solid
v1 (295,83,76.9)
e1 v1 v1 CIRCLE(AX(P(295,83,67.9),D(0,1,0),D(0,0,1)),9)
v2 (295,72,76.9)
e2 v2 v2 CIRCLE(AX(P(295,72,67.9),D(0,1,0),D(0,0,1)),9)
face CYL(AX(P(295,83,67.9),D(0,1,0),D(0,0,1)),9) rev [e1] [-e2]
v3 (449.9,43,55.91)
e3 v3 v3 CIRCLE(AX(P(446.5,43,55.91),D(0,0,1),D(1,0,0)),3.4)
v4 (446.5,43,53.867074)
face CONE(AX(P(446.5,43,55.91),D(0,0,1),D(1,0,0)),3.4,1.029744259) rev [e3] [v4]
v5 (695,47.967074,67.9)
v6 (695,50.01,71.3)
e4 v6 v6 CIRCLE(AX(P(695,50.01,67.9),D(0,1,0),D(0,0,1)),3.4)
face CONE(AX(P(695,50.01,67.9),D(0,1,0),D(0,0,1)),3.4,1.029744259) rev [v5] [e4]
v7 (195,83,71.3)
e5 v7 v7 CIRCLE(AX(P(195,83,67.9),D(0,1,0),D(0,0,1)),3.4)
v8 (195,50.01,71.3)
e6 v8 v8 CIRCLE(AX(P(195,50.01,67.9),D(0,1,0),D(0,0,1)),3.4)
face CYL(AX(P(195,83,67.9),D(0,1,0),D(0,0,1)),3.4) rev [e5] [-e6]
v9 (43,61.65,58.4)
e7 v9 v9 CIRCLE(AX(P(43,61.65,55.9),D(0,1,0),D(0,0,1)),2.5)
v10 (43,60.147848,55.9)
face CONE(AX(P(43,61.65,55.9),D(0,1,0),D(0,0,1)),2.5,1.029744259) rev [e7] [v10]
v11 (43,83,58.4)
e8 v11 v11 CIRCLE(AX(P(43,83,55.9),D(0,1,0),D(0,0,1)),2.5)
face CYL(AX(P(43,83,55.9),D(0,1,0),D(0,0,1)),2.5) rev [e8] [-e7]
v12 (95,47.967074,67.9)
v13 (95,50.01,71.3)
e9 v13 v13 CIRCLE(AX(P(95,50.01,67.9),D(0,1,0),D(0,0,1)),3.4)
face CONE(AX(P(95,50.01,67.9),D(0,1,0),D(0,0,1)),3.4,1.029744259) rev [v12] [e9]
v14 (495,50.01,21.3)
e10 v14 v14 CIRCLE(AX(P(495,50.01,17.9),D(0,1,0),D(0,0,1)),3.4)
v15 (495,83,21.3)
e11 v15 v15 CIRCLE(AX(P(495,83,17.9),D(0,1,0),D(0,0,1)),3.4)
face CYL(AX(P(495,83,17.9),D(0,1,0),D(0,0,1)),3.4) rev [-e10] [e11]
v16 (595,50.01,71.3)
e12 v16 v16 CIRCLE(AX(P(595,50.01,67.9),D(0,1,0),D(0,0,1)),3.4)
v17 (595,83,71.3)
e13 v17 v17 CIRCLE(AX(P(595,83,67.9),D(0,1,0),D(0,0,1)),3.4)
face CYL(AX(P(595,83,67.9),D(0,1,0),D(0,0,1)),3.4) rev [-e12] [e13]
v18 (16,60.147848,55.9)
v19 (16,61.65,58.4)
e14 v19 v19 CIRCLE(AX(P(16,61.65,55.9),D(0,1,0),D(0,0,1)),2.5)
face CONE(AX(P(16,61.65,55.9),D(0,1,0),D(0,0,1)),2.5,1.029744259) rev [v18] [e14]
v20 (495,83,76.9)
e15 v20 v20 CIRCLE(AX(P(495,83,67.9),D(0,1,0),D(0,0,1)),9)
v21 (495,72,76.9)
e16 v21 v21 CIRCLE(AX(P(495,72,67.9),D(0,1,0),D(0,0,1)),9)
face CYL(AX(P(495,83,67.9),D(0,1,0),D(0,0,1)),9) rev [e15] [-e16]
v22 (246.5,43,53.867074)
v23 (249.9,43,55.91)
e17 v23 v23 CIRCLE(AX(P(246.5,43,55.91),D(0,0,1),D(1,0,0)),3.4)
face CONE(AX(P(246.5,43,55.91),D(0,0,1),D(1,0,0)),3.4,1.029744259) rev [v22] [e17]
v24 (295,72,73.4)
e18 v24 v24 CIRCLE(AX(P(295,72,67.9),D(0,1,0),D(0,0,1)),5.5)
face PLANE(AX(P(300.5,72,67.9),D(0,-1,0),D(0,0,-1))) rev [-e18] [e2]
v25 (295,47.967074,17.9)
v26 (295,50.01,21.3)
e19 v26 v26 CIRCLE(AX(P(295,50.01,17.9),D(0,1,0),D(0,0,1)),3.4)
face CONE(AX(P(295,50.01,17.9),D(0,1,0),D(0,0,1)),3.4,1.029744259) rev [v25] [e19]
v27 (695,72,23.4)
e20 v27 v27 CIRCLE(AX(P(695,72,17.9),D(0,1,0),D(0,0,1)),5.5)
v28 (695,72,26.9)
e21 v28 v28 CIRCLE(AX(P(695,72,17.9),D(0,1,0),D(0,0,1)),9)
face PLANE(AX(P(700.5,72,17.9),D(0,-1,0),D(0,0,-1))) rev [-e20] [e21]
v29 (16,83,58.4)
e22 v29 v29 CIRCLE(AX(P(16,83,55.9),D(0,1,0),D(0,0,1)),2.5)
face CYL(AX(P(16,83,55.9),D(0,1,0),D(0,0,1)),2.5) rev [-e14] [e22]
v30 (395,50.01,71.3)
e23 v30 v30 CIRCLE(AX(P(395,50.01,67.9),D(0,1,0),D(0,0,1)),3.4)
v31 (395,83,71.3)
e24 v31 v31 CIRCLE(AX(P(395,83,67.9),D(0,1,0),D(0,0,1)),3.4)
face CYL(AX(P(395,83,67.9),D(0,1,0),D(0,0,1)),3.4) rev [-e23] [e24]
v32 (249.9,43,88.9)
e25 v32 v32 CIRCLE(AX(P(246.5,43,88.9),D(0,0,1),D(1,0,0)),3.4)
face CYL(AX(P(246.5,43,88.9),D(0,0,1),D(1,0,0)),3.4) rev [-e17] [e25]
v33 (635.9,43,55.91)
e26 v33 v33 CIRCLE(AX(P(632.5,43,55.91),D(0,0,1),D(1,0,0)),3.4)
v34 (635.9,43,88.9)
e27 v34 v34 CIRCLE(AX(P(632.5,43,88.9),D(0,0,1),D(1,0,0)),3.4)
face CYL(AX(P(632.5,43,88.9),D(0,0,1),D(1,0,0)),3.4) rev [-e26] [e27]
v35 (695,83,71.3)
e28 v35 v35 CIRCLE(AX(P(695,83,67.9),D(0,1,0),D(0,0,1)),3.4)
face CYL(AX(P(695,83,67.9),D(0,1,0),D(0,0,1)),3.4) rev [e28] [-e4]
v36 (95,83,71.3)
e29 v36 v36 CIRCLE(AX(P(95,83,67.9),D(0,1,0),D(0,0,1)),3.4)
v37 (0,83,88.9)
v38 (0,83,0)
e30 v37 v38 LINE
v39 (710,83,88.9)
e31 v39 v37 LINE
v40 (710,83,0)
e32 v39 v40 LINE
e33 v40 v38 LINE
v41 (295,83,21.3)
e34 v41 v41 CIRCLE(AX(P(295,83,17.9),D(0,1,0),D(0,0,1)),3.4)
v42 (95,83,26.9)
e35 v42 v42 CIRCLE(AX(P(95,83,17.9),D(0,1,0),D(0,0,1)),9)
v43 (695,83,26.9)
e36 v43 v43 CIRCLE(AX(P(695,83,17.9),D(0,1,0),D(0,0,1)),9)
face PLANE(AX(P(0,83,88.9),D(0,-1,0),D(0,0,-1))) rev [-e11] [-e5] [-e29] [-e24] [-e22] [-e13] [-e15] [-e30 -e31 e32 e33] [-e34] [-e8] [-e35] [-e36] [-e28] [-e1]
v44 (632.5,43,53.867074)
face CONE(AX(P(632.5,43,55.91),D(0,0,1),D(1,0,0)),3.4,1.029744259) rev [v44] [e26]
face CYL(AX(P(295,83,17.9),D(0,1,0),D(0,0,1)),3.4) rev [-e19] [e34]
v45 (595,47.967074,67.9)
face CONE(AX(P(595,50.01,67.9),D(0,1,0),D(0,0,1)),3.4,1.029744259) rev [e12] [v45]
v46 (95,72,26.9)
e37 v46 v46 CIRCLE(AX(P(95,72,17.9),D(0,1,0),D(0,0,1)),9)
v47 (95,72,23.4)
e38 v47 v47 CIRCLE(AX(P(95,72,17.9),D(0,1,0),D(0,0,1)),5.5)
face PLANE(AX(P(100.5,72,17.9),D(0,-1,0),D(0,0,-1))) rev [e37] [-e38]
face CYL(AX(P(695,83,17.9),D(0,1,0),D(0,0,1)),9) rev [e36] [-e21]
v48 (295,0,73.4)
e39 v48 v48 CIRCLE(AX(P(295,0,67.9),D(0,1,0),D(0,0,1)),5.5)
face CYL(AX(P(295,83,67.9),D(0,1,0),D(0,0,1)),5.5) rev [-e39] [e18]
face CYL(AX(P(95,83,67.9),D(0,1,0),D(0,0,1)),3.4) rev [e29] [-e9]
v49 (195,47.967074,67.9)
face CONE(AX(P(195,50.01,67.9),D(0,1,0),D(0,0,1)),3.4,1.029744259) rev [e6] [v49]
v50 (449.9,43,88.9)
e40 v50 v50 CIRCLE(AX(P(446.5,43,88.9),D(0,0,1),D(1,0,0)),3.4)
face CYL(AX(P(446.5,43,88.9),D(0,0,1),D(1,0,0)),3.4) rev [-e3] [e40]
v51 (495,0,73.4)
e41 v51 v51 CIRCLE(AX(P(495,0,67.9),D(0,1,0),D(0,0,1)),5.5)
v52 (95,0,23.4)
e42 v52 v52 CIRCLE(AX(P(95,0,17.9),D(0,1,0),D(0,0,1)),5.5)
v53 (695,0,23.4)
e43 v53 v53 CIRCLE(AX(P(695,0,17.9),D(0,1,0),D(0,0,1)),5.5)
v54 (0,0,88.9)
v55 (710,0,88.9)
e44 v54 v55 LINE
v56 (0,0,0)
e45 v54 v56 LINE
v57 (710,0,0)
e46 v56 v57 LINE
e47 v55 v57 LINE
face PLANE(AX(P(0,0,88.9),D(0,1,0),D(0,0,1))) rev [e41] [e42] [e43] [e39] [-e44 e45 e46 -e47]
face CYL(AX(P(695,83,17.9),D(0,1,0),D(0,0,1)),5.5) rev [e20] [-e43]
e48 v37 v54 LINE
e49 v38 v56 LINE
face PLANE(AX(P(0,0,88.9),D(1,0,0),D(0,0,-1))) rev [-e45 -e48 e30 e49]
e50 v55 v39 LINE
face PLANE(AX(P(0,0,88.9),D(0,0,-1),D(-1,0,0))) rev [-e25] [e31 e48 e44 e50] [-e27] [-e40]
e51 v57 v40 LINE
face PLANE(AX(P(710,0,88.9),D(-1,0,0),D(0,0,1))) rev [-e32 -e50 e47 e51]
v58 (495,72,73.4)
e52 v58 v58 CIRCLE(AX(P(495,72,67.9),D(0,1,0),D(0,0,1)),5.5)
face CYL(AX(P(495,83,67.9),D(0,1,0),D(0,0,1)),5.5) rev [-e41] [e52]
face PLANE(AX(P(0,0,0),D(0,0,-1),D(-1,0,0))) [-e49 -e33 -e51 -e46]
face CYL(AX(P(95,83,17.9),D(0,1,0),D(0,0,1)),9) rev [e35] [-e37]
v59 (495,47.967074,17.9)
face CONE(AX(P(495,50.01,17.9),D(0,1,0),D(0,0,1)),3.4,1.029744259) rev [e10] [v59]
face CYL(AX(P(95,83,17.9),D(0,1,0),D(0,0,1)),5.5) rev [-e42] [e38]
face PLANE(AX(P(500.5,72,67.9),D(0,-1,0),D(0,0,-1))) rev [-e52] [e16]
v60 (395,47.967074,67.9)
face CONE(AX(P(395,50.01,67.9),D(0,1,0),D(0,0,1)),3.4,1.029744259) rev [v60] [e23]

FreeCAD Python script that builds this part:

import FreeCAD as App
import Part
import Sketcher

V = App.Vector


def add_polygon(sketch, points):
    """Adds a closed chain of lines whose ends are joined by coincident constraints."""
    first, n = sketch.GeometryCount, len(points)
    for a, b in zip(points, points[1:] + points[:1]):
        sketch.addGeometry(Part.LineSegment(App.Vector(*a, 0), App.Vector(*b, 0)), False)
    for i in range(n):
        sketch.addConstraint(Sketcher.Constraint("Coincident", first + i, 2, first + (i + 1) % n, 1))

doc = App.newDocument("Part")
body = doc.addObject("PartDesign::Body", "Body")

# Sketch on XY plane
sketch1 = body.newObject("Sketcher::SketchObject", "Sketch")
sketch1.AttachmentSupport = (doc.getObject("XY_Plane"), [""])
sketch1.MapMode = "FlatFace"
add_polygon(sketch1, [(0, 83), (0, 0), (710, 0), (710, 83)])  # lines 0-3
sketch1.addConstraint([
    Sketcher.Constraint("Vertical", 0),
    Sketcher.Constraint("Horizontal", 1),
    Sketcher.Constraint("Vertical", 2),
    Sketcher.Constraint("Horizontal", 3),
    Sketcher.Constraint("Coincident", 0, 2, -1, 1),
    Sketcher.Constraint("DistanceX", 1, 1, 1, 2, 710.0),
    Sketcher.Constraint("DistanceY", 0, 2, 0, 1, 83.0),
])
pad1 = body.newObject("PartDesign::Pad", "Pad")
pad1.Profile = sketch1
pad1.Length = 88.9

# Sketch on XZ plane
sketch2 = body.newObject("Sketcher::SketchObject", "Sketch001")
sketch2.AttachmentSupport = (doc.getObject("XZ_Plane"), [""])
sketch2.MapMode = "FlatFace"
sketch2.AttachmentOffset = App.Placement(V(0, 0, -83), App.Rotation())
sketch2.addGeometry([
    Part.Circle(V(95, 67.9, 0), V(0, 0, 1), 3.4),  # 0
    Part.Circle(V(195, 67.9, 0), V(0, 0, 1), 3.4),  # 1
    Part.Circle(V(295, 17.9, 0), V(0, 0, 1), 3.4),  # 2
    Part.Circle(V(395, 67.9, 0), V(0, 0, 1), 3.4),  # 3
    Part.Circle(V(495, 17.9, 0), V(0, 0, 1), 3.4),  # 4
    Part.Circle(V(595, 67.9, 0), V(0, 0, 1), 3.4),  # 5
    Part.Circle(V(695, 67.9, 0), V(0, 0, 1), 3.4),  # 6
], False)
sketch2.addConstraint([
    Sketcher.Constraint("Equal", 0, 1),
    Sketcher.Constraint("Equal", 1, 2),
    Sketcher.Constraint("Equal", 2, 3),
    Sketcher.Constraint("Equal", 3, 4),
    Sketcher.Constraint("Equal", 4, 5),
    Sketcher.Constraint("Equal", 5, 6),
    Sketcher.Constraint("Horizontal", 0, 3, 1, 3),
    Sketcher.Constraint("Horizontal", 1, 3, 3, 3),
    Sketcher.Constraint("Horizontal", 2, 3, 4, 3),
    Sketcher.Constraint("Horizontal", 3, 3, 5, 3),
    Sketcher.Constraint("Horizontal", 5, 3, 6, 3),
    Sketcher.Constraint("Diameter", 0, 6.8),
    Sketcher.Constraint("DistanceX", -1, 1, 0, 3, 95.0),
    Sketcher.Constraint("DistanceX", -1, 1, 1, 3, 195.0),
    Sketcher.Constraint("DistanceX", -1, 1, 2, 3, 295.0),
    Sketcher.Constraint("DistanceX", -1, 1, 3, 3, 395.0),
    Sketcher.Constraint("DistanceX", -1, 1, 4, 3, 495.0),
    Sketcher.Constraint("DistanceX", -1, 1, 5, 3, 595.0),
    Sketcher.Constraint("DistanceX", -1, 1, 6, 3, 695.0),
    Sketcher.Constraint("DistanceY", 2, 3, 1, 3, 50.0),
    Sketcher.Constraint("DistanceY", -1, 1, 0, 3, 67.9),
])
doc.recompute()
hole = body.newObject("PartDesign::Hole", "Hole")
hole.Profile = sketch2
hole.ThreadType = "None"
hole.Diameter = 6.8
hole.DepthType = "Dimension"
hole.Depth = 32.99
hole.DrillPoint = "Angled"
hole.DrillPointAngle = 118
hole.Reversed = True

# Sketch on XZ plane
sketch3 = body.newObject("Sketcher::SketchObject", "Sketch002")
sketch3.AttachmentSupport = (doc.getObject("XZ_Plane"), [""])
sketch3.MapMode = "FlatFace"
sketch3.AttachmentOffset = App.Placement(V(0, 0, -83), App.Rotation())
sketch3.addGeometry([
    Part.Circle(V(695, 18, 0), V(0, 0, 1), 6),
    Part.Circle(V(495, 68, 0), V(0, 0, 1), 6),
    Part.Circle(V(295, 68, 0), V(0, 0, 1), 6),
    Part.Circle(V(95, 18, 0), V(0, 0, 1), 6),
], False)
sketch3.addConstraint([
    Sketcher.Constraint("Equal", 0, 1),
    Sketcher.Constraint("Equal", 1, 2),
    Sketcher.Constraint("Equal", 2, 3),
    Sketcher.Constraint("Horizontal", 1, 3, 2, 3),
    Sketcher.Constraint("Horizontal", 0, 3, 3, 3),
    Sketcher.Constraint("Diameter", 0, 11.0),
    Sketcher.Constraint("DistanceX", -1, 1, 0, 3, 695.0),
    Sketcher.Constraint("DistanceX", -1, 1, 1, 3, 495.0),
    Sketcher.Constraint("DistanceX", -1, 1, 2, 3, 295.0),
    Sketcher.Constraint("DistanceX", -1, 1, 3, 3, 95.0),
    Sketcher.Constraint("DistanceY", 0, 3, 1, 3, 50.0),
    Sketcher.Constraint("DistanceY", -1, 1, 0, 3, 17.9),
])
doc.recompute()
hole2 = body.newObject("PartDesign::Hole", "Hole001")
hole2.Profile = sketch3
hole2.ThreadType = "None"
hole2.Diameter = 11
hole2.DepthType = "ThroughAll"
hole2.HoleCutType = "Counterbore"
hole2.HoleCutDiameter = 18
hole2.HoleCutDepth = 11
hole2.Reversed = True

# Sketch on XZ plane
sketch4 = body.newObject("Sketcher::SketchObject", "Sketch003")
sketch4.AttachmentSupport = (doc.getObject("XZ_Plane"), [""])
sketch4.MapMode = "FlatFace"
sketch4.AttachmentOffset = App.Placement(V(0, 0, -83), App.Rotation())
sketch4.addGeometry([
    Part.Circle(V(16, 55.9, 0), V(0, 0, 1), 2.5),
    Part.Circle(V(43, 55.9, 0), V(0, 0, 1), 2.5),
], False)
sketch4.addConstraint([
    Sketcher.Constraint("Equal", 0, 1),
    Sketcher.Constraint("Horizontal", 0, 3, 1, 3),
    Sketcher.Constraint("Diameter", 0, 5.0),
    Sketcher.Constraint("DistanceX", -1, 1, 0, 3, 16.0),
    Sketcher.Constraint("DistanceX", -1, 1, 1, 3, 43.0),
    Sketcher.Constraint("DistanceY", -1, 1, 0, 3, 55.9),
])
doc.recompute()
hole3 = body.newObject("PartDesign::Hole", "Hole002")
hole3.Profile = sketch4
hole3.ThreadType = "None"
hole3.Diameter = 5
hole3.DepthType = "Dimension"
hole3.Depth = 21.35
hole3.DrillPoint = "Angled"
hole3.DrillPointAngle = 118
hole3.Reversed = True

# Sketch on XY plane
sketch5 = body.newObject("Sketcher::SketchObject", "Sketch004")
sketch5.AttachmentSupport = (doc.getObject("XY_Plane"), [""])
sketch5.MapMode = "FlatFace"
sketch5.AttachmentOffset = App.Placement(V(0, 0, 88.9), App.Rotation())
sketch5.addGeometry([
    Part.Circle(V(246.5, 43, 0), V(0, 0, 1), 3.4),
    Part.Circle(V(446.5, 43, 0), V(0, 0, 1), 3.4),
    Part.Circle(V(632.5, 43, 0), V(0, 0, 1), 3.4),
], False)
sketch5.addConstraint([
    Sketcher.Constraint("Equal", 0, 1),
    Sketcher.Constraint("Equal", 1, 2),
    Sketcher.Constraint("Horizontal", 0, 3, 1, 3),
    Sketcher.Constraint("Horizontal", 1, 3, 2, 3),
    Sketcher.Constraint("Diameter", 0, 6.8),
    Sketcher.Constraint("DistanceY", -1, 1, 0, 3, 43.0),
    Sketcher.Constraint("DistanceX", 0, 3, 1, 3, 200.0),
    Sketcher.Constraint("DistanceX", 1, 3, 2, 3, 186.0),
    Sketcher.Constraint("DistanceX", -1, 1, 0, 3, 246.5),
])
doc.recompute()
hole4 = body.newObject("PartDesign::Hole", "Hole003")
hole4.Profile = sketch5
hole4.ThreadType = "None"
hole4.Diameter = 6.8
hole4.DepthType = "Dimension"
hole4.Depth = 32.99
hole4.DrillPoint = "Angled"
hole4.DrillPointAngle = 118

doc.recompute()
